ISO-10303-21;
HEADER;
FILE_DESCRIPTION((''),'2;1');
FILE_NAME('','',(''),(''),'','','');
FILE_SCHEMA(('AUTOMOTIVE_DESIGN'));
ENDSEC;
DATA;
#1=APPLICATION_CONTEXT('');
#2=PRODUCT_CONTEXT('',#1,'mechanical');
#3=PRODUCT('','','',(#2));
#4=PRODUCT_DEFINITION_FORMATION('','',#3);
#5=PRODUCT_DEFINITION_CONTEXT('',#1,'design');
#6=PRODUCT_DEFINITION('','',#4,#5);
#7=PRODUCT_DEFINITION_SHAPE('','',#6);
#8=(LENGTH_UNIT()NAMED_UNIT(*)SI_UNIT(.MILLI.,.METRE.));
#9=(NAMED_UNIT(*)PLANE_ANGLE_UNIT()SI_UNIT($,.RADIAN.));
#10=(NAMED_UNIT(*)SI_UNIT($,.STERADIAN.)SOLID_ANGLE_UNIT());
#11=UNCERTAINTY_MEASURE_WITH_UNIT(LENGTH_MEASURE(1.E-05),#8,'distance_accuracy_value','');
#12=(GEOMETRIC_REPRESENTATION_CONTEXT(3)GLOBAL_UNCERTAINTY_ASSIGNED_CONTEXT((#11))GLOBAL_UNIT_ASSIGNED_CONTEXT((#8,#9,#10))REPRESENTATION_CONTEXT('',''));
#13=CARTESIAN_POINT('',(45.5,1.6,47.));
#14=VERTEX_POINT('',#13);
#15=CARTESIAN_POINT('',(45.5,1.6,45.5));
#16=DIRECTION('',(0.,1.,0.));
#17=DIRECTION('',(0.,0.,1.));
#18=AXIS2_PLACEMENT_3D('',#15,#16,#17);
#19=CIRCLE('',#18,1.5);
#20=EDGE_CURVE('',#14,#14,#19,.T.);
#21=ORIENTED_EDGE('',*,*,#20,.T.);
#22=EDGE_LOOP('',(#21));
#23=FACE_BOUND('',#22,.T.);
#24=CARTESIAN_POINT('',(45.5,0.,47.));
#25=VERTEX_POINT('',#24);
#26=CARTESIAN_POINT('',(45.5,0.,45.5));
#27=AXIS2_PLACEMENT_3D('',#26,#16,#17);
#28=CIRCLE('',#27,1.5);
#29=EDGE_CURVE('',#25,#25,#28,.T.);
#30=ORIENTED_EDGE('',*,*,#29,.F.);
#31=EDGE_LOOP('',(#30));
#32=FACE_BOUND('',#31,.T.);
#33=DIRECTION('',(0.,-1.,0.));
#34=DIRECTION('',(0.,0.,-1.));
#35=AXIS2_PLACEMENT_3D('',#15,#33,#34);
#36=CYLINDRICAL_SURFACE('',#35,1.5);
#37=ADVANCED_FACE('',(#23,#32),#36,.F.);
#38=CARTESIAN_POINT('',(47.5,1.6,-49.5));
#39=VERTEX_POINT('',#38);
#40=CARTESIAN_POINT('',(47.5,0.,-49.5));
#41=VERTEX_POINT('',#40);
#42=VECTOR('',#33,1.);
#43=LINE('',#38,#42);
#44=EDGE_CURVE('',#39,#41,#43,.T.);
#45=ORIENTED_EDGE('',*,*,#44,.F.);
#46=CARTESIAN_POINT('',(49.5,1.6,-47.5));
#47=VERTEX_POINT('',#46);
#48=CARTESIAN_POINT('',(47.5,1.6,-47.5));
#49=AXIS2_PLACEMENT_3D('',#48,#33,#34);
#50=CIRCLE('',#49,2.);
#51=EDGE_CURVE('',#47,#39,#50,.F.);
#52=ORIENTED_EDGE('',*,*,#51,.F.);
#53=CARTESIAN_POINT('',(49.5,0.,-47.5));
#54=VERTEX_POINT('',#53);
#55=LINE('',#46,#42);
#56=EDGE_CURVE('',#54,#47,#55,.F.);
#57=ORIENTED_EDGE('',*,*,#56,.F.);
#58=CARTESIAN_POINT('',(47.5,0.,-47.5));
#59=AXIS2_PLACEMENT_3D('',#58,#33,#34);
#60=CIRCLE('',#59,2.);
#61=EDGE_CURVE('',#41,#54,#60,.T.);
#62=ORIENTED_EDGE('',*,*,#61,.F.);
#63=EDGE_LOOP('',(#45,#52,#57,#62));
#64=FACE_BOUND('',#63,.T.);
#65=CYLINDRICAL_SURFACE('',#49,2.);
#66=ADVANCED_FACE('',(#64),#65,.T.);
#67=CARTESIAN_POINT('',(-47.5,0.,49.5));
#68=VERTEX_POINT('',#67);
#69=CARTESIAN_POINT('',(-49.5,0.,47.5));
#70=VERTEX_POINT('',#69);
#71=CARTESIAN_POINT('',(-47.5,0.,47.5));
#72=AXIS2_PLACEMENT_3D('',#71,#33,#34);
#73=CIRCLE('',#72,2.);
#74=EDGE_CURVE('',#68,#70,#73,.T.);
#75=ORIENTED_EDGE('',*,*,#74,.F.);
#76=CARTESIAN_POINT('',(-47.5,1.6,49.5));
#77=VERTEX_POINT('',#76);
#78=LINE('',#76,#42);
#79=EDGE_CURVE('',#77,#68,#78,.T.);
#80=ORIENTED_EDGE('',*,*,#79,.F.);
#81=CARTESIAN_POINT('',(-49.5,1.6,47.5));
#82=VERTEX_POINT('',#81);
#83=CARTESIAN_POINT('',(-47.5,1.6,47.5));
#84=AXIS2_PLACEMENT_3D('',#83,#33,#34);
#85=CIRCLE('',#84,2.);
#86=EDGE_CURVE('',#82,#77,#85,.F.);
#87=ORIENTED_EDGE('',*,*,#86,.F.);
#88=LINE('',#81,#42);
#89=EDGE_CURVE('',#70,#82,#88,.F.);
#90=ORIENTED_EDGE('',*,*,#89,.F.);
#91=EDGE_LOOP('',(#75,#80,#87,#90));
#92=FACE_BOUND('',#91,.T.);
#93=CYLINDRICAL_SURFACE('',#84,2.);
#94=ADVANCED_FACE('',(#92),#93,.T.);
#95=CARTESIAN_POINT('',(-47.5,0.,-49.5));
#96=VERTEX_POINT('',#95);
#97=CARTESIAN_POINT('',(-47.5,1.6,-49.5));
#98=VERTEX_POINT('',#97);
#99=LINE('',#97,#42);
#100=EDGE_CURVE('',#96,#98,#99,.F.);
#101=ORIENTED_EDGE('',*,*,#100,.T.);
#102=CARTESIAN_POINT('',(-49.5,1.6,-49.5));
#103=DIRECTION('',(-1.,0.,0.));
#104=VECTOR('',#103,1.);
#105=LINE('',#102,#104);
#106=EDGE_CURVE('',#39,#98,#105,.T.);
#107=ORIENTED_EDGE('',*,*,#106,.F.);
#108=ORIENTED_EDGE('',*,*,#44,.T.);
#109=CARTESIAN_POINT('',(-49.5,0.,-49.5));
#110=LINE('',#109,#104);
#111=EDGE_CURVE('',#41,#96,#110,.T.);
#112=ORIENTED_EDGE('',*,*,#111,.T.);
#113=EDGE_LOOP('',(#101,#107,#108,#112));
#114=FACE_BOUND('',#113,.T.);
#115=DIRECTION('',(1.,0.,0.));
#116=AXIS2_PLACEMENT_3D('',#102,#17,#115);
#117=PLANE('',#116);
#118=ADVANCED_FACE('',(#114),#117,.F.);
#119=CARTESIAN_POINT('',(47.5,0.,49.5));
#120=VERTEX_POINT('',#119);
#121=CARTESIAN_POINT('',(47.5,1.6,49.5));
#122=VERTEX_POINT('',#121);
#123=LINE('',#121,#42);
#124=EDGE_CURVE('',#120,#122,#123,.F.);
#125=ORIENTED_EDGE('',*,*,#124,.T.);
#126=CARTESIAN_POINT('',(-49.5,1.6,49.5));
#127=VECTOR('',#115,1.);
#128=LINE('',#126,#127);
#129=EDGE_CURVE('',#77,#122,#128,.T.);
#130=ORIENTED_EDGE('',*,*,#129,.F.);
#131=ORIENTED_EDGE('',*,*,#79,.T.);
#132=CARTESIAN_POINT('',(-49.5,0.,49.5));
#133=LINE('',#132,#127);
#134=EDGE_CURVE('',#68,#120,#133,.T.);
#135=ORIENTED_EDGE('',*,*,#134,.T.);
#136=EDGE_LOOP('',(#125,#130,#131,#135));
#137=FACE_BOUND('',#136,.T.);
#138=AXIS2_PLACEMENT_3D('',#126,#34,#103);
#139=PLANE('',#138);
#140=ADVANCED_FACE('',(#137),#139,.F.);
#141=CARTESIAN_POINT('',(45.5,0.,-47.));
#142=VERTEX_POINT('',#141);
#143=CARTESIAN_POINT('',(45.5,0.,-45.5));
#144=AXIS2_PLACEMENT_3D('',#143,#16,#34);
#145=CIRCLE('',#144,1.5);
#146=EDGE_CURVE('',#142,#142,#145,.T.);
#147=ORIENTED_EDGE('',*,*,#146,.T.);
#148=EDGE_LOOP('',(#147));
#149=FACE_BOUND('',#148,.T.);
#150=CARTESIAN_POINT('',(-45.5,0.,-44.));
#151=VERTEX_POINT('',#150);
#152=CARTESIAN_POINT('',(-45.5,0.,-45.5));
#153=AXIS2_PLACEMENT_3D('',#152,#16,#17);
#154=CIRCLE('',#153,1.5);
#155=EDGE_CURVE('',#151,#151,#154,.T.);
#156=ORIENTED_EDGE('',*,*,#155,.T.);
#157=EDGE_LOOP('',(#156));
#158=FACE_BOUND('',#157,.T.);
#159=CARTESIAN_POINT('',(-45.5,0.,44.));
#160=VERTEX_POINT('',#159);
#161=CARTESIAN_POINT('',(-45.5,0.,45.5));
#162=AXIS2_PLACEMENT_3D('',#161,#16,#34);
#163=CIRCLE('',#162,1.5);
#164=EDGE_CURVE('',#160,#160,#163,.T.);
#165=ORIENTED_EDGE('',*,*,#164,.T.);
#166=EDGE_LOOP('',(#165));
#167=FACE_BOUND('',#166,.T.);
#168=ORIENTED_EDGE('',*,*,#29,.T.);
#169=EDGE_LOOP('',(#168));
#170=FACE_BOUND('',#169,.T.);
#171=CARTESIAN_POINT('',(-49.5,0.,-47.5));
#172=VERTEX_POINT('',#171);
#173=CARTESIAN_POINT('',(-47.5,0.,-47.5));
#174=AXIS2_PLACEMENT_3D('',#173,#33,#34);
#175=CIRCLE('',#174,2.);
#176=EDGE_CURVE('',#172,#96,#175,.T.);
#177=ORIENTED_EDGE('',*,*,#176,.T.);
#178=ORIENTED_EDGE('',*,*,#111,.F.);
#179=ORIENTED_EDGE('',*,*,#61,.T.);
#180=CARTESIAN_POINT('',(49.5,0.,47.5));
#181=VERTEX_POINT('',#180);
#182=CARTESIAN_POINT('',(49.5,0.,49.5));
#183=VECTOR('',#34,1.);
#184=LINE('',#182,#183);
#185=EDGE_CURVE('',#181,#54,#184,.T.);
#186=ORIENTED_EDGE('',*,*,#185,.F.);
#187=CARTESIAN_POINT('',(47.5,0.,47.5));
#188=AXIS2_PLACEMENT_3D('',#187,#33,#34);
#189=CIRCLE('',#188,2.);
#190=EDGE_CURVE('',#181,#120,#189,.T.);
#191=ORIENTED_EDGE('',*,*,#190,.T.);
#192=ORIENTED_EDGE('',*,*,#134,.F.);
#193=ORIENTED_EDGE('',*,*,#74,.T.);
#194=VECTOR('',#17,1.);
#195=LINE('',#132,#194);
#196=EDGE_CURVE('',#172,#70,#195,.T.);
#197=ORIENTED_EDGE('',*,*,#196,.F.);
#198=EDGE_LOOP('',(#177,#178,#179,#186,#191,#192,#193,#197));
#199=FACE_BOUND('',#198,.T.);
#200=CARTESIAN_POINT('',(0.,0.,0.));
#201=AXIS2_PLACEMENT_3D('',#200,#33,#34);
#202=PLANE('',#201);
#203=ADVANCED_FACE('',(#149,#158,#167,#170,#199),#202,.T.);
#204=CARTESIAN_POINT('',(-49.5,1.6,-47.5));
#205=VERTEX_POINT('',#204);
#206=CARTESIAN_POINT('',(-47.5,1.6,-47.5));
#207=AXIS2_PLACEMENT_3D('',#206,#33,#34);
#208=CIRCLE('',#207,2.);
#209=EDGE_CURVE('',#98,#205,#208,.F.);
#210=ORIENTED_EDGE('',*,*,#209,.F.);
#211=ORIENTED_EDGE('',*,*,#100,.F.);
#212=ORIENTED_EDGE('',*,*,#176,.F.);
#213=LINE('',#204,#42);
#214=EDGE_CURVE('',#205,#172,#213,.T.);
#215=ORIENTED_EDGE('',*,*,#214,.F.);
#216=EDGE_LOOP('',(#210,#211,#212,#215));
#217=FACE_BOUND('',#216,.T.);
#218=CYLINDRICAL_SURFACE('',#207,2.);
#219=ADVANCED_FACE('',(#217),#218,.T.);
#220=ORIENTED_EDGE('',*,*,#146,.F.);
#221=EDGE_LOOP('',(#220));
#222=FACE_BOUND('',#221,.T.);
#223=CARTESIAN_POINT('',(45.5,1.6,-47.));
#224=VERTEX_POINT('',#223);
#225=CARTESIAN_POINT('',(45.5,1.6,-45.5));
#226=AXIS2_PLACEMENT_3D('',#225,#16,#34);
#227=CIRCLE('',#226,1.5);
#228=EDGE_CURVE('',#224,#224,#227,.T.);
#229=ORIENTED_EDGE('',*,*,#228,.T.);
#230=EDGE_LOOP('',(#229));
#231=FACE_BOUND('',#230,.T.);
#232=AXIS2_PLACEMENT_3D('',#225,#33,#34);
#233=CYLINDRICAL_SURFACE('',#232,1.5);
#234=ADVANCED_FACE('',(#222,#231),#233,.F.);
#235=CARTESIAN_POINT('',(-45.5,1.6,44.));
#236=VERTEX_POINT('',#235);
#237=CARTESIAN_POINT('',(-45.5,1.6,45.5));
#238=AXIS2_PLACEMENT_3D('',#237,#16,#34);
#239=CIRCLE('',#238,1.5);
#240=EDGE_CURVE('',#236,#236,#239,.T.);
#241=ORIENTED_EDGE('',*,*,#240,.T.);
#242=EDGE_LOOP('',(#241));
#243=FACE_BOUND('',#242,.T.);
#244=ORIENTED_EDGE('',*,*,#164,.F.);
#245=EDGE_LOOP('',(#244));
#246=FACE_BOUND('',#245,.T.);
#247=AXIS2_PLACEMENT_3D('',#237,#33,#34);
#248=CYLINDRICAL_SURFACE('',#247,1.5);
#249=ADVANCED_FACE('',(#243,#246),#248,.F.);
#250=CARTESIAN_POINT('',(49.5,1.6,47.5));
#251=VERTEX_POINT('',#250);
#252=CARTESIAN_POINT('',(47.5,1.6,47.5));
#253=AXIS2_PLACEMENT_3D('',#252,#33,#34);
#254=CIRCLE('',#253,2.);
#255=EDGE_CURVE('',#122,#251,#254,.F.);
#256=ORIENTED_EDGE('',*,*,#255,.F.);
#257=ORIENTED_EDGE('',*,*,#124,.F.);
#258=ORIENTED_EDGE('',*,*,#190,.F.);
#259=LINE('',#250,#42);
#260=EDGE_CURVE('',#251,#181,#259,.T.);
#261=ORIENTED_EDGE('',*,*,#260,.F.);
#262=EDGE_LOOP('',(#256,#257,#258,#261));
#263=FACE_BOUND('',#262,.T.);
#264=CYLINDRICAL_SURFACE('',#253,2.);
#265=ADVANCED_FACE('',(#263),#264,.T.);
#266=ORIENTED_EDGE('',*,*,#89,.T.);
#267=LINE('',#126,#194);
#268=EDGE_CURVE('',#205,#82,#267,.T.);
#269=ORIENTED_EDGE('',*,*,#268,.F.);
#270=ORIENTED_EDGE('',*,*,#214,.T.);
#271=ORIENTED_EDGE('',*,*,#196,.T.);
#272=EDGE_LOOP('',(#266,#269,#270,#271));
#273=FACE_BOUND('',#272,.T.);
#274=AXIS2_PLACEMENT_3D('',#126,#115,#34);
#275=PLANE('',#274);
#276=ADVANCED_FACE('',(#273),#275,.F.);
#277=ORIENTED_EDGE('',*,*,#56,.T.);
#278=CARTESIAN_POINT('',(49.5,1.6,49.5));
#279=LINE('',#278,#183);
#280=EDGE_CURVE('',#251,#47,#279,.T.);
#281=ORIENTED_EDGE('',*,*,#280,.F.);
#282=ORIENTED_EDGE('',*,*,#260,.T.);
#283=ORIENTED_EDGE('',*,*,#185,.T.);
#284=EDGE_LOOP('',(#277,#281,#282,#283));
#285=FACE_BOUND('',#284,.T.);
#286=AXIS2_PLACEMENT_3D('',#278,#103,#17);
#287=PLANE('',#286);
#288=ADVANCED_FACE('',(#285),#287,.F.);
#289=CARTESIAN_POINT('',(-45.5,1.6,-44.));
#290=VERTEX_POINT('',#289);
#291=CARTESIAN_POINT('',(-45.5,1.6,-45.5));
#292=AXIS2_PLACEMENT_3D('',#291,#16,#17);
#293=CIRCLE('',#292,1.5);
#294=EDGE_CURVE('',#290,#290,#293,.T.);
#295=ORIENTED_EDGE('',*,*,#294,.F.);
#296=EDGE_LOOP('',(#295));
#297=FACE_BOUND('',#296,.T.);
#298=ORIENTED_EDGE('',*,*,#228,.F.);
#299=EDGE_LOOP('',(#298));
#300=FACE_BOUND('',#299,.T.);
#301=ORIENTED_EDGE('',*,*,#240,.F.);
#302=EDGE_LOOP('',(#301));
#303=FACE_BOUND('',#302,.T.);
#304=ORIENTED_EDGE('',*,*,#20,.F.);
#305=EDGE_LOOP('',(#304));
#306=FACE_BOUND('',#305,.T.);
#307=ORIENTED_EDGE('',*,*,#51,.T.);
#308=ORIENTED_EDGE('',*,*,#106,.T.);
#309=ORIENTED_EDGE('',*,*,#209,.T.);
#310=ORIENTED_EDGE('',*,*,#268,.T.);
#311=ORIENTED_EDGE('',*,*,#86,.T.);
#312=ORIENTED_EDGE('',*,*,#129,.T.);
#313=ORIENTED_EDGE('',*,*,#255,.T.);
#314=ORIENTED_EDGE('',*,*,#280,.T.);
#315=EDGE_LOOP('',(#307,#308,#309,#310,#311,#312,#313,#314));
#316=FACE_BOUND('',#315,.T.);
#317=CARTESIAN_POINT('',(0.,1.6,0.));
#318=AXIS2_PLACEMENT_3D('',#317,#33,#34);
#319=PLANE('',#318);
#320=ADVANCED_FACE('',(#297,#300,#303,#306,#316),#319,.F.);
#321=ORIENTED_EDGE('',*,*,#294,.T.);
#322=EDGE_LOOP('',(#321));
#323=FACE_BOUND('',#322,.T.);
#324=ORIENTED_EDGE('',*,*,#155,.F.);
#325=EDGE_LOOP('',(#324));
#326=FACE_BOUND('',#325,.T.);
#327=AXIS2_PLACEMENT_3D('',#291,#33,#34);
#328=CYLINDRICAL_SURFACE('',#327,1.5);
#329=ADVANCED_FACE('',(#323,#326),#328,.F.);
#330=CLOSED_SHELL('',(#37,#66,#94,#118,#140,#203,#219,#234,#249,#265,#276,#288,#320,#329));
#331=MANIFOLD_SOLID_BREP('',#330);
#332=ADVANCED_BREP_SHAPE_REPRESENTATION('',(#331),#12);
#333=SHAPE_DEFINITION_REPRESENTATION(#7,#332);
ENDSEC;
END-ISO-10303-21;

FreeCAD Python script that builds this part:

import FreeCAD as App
import Part
import Sketcher

V = App.Vector
Q = App.Units.Quantity


def edges_at(feature, points):
    """Names of the edges that pass closest to the given points."""
    edges = feature.Shape.Edges
    near = lambda p: min(range(len(edges)), key=lambda i: edges[i].distToShape(Part.Vertex(*p))[0])
    return sorted({f"Edge{near(p) + 1}" for p in points})


def add_polygon(sketch, points):
    """Adds a closed chain of lines whose ends are joined by coincident constraints."""
    first, n = sketch.GeometryCount, len(points)
    for a, b in zip(points, points[1:] + points[:1]):
        sketch.addGeometry(Part.LineSegment(App.Vector(*a, 0), App.Vector(*b, 0)), False)
    for i in range(n):
        sketch.addConstraint(Sketcher.Constraint("Coincident", first + i, 2, first + (i + 1) % n, 1))

doc = App.newDocument("Part")
body = doc.addObject("PartDesign::Body", "Body")

# Sketch on XZ plane
sketch1 = body.newObject("Sketcher::SketchObject", "Sketch")
sketch1.AttachmentSupport = (doc.getObject("XZ_Plane"), [""])
sketch1.MapMode = "FlatFace"
add_polygon(sketch1, [(-49.5, -49.5), (-49.5, 49.5), (49.5, 49.5), (49.5, -49.5)])  # lines 0-3
sketch1.addGeometry(Part.Circle(V(-45.5, 45.5, 0), V(0, 0, 1), 1.5), False)  # 4
sketch1.addGeometry(Part.Circle(V(45.5, 45.5, 0), V(0, 0, 1), 1.5), False)  # 5
sketch1.addGeometry(Part.Circle(V(-45.5, -45.5, 0), V(0, 0, 1), 1.5), False)  # 6
sketch1.addGeometry(Part.Circle(V(45.5, -45.5, 0), V(0, 0, 1), 1.5), False)  # 7
sketch1.addConstraint(Sketcher.Constraint("Vertical", 0))
sketch1.addConstraint(Sketcher.Constraint("Horizontal", 1))
sketch1.addConstraint(Sketcher.Constraint("Vertical", 2))
sketch1.addConstraint(Sketcher.Constraint("Horizontal", 3))
sketch1.addConstraint(Sketcher.Constraint("Equal", 4, 5))
sketch1.addConstraint(Sketcher.Constraint("Equal", 5, 6))
sketch1.addConstraint(Sketcher.Constraint("Equal", 6, 7))
sketch1.addConstraint(Sketcher.Constraint("Symmetric", 5, 3, 6, 3, -1, 1))
sketch1.addConstraint(Sketcher.Constraint("Symmetric", 4, 3, 7, 3, -1, 1))
sketch1.addConstraint(Sketcher.Constraint("Symmetric", 0, 2, 2, 2, -1, 1))
sketch1.addConstraint(Sketcher.Constraint("Symmetric", 4, 3, 5, 3, -2))
sketch1.addConstraint(Sketcher.Constraint("Equal", 3, 0))
sketch1.addConstraint(Sketcher.Constraint("Diameter", 4, Q("3 mm")))
sketch1.addConstraint(Sketcher.Constraint("DistanceX", 1, 1, 1, 2, Q("99 mm")))
sketch1.addConstraint(Sketcher.Constraint("DistanceX", 4, 3, 5, 3, Q("91 mm")))
sketch1.addConstraint(Sketcher.Constraint("DistanceY", 6, 3, 4, 3, Q("91 mm")))
pad1 = body.newObject("PartDesign::Pad", "Pad")
pad1.Profile = sketch1
pad1.Length = 1.6
pad1.Reversed = True
doc.recompute()

fillet = body.newObject("PartDesign::Fillet", "Fillet")
fillet.Base = (pad1, edges_at(pad1, [
    (49.5, 0.8, 49.5),
    (-49.5, 0.8, 49.5),
    (-49.5, 0.8, -49.5),
    (49.5, 0.8, -49.5),
]))
fillet.Radius = 2

doc.recompute()
